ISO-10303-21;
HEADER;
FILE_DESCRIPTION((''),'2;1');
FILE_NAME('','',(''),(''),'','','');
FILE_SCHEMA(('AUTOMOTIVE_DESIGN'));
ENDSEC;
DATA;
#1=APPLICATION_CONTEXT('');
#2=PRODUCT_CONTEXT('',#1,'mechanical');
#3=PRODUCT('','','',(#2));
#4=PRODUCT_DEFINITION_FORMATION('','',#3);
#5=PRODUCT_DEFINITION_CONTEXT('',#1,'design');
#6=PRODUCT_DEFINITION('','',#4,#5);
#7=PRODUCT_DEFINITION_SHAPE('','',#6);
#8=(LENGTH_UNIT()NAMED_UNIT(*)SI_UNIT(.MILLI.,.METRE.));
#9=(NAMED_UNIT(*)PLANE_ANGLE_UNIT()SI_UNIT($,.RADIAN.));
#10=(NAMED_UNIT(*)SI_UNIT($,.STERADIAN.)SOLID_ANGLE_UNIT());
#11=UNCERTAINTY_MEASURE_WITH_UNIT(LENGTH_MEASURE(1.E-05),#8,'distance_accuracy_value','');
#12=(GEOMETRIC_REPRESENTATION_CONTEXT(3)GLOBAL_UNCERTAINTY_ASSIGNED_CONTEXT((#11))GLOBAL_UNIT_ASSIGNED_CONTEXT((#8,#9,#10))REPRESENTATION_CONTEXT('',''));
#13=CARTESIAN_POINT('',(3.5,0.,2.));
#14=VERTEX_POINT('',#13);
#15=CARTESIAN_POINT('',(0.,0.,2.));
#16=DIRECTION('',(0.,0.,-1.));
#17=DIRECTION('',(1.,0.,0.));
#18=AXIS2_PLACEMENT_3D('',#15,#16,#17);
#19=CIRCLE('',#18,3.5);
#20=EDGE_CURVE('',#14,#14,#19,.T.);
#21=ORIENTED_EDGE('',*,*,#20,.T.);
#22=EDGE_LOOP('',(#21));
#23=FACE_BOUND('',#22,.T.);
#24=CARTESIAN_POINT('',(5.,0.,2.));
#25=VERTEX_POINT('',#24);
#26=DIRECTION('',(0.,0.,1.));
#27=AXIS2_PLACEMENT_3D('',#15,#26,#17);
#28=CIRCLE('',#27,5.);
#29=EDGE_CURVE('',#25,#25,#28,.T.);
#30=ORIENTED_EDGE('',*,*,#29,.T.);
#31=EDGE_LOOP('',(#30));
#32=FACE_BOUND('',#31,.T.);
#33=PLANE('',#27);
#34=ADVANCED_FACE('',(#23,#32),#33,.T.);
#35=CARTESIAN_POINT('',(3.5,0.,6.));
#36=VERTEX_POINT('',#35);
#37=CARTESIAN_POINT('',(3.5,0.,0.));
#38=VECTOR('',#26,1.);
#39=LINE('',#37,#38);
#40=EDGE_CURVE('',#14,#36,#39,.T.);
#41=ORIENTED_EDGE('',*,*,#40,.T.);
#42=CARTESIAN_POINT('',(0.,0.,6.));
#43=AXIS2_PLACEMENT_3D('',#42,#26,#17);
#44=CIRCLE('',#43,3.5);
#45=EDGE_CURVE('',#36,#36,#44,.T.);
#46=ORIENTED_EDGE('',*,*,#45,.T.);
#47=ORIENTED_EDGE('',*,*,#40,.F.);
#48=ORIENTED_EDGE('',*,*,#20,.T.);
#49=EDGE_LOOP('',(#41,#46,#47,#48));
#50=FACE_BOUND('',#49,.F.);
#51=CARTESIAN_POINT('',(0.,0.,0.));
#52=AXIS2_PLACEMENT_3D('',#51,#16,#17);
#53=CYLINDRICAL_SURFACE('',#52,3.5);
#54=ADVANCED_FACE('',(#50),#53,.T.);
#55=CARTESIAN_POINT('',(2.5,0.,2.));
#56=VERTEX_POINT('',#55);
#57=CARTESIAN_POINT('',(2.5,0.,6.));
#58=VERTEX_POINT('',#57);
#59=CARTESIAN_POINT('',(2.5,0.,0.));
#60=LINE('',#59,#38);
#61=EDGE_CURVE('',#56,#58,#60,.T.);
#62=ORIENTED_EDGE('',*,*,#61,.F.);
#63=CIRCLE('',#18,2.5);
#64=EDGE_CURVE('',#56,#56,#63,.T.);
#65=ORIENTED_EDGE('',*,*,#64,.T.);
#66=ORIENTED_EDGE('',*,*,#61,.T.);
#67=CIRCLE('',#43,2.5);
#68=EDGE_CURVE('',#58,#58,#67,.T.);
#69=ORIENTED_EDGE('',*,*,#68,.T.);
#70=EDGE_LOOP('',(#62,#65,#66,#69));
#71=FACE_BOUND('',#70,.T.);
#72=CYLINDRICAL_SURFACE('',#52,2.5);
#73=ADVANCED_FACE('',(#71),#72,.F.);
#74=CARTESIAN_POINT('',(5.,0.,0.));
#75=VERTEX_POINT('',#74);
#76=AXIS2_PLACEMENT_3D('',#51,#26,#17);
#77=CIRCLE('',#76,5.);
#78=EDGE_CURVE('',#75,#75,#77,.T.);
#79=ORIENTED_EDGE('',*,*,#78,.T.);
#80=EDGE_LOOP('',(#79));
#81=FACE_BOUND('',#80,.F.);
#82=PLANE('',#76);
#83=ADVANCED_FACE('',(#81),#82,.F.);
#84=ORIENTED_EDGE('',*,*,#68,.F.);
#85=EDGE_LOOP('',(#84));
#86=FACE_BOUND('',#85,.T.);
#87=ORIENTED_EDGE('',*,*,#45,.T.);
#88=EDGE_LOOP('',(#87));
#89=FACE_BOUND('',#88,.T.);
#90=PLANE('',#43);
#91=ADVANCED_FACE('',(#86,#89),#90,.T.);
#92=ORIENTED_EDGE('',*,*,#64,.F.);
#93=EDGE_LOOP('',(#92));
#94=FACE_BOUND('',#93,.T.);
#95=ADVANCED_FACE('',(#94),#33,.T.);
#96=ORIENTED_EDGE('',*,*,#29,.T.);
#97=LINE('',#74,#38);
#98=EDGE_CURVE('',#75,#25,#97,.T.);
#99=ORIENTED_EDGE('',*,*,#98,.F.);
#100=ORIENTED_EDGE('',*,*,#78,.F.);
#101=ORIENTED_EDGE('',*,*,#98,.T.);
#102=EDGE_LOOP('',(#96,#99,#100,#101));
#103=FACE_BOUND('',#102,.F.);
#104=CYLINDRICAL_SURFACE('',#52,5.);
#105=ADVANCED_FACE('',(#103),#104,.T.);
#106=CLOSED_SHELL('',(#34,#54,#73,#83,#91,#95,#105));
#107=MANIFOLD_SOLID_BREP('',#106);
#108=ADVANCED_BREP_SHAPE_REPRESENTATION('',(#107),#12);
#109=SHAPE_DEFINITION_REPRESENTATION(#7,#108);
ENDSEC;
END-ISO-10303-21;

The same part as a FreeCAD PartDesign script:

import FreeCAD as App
import Part
import Sketcher

V = App.Vector

doc = App.newDocument("Part")
body = doc.addObject("PartDesign::Body", "Body")

# Sketch on XY plane
sketch1 = body.newObject("Sketcher::SketchObject", "Sketch")
sketch1.AttachmentSupport = (doc.getObject("XY_Plane"), [""])
sketch1.MapMode = "FlatFace"
sketch1.addGeometry(Part.Circle(V(0, 0, 0), V(0, 0, 1), 5), False)
sketch1.addConstraint([
    Sketcher.Constraint("Coincident", 0, 3, -1, 1),
    Sketcher.Constraint("Diameter", 0, 10.0),
])
pad1 = body.newObject("PartDesign::Pad", "Pad")
pad1.Profile = sketch1
pad1.Length = 2

# Sketch on XY plane
sketch2 = body.newObject("Sketcher::SketchObject", "Sketch001")
sketch2.AttachmentSupport = (doc.getObject("XY_Plane"), [""])
sketch2.MapMode = "FlatFace"
sketch2.addGeometry([
    Part.Circle(V(0, 0, 0), V(0, 0, 1), 3.5),
    Part.Circle(V(0, 0, 0), V(0, 0, 1), 2.5),
], False)
sketch2.addConstraint([
    Sketcher.Constraint("Coincident", 0, 3, -1, 1),
    Sketcher.Constraint("Coincident", 1, 3, -1, 1),
    Sketcher.Constraint("Diameter", 0, 7.0),
    Sketcher.Constraint("Diameter", 1, 5.0),
])
pad2 = body.newObject("PartDesign::Pad", "Pad001")
pad2.Profile = sketch2
pad2.Length = 6

doc.recompute()
